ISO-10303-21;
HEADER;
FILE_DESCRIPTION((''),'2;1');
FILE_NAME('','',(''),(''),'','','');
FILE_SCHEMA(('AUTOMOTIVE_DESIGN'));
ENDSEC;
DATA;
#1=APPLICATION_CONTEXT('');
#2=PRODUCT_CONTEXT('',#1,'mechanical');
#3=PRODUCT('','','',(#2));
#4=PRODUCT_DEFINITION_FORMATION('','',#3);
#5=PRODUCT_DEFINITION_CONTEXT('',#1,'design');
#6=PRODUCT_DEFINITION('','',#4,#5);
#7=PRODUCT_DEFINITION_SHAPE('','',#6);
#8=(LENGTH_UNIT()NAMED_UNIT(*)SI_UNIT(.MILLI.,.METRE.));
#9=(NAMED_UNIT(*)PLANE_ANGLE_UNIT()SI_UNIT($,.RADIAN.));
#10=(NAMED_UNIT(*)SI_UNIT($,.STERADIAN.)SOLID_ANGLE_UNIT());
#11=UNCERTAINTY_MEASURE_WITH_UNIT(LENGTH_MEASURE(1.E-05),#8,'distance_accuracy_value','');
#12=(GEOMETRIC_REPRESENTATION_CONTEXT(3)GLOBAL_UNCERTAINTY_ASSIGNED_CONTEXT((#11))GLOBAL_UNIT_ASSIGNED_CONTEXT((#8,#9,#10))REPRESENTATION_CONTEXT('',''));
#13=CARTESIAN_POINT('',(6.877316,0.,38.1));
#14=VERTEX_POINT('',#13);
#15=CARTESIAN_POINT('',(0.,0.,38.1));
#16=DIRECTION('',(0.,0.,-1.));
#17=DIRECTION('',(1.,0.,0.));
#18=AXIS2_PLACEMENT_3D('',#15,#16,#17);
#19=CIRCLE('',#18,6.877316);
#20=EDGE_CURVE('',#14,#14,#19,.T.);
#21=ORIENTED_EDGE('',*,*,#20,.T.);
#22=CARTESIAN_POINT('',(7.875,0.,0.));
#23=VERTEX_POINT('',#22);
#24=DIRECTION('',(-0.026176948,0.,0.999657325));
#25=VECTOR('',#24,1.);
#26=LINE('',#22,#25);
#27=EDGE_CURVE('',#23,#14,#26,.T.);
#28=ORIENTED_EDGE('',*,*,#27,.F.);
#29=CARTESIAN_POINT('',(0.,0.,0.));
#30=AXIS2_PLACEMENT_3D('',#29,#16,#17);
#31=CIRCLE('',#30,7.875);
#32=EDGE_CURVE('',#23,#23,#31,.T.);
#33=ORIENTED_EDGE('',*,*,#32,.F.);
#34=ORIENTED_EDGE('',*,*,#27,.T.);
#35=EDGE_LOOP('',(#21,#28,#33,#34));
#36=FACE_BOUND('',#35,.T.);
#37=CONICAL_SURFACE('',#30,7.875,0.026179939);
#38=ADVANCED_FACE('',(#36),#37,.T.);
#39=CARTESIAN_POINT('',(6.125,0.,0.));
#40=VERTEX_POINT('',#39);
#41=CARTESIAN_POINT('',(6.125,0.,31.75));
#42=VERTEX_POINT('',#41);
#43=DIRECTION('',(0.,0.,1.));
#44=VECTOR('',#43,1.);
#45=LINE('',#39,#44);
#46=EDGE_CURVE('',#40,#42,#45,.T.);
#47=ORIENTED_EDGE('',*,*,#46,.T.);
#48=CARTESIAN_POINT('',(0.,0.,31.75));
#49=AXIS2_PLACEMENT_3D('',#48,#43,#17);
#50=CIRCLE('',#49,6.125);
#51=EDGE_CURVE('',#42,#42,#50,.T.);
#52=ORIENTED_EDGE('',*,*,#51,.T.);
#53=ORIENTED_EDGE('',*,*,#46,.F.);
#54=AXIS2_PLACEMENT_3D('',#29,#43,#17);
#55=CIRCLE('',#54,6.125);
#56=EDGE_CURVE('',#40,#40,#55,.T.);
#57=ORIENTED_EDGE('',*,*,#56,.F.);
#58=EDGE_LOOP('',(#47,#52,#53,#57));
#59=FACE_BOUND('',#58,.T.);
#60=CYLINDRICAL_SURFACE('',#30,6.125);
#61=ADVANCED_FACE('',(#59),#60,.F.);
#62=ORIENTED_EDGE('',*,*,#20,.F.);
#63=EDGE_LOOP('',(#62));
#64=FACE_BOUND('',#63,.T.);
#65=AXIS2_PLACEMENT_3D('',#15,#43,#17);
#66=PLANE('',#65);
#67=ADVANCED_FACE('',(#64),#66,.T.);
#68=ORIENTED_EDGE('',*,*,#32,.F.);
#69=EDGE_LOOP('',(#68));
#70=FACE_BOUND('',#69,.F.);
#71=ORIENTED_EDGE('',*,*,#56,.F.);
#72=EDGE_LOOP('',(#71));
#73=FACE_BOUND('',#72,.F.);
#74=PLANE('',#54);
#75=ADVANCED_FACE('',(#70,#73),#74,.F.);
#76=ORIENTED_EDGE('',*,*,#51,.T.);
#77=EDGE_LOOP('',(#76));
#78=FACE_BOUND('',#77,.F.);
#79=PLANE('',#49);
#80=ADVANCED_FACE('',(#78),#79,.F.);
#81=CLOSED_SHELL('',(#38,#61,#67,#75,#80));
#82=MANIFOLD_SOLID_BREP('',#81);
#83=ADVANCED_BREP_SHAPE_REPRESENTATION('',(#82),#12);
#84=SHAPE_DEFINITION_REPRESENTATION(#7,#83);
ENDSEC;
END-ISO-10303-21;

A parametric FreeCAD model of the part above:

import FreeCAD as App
import Part
import Sketcher
Q = App.Units.Quantity

doc = App.newDocument("Part")
body = doc.addObject("PartDesign::Body", "Body")

# Sketch on XY plane
sketch1 = doc.addObject("Sketcher::SketchObject", "Sketch")
body.addObject(sketch1)
sketch1.AttachmentSupport = (doc.XY_Plane, [""])
sketch1.MapMode = "FlatFace"
sketch1.addGeometry(Part.Circle(App.Vector(0, 0, 0), App.Vector(0, 0, 1), 8), False)
sketch1.addConstraint(Sketcher.Constraint("Coincident", 0, 3, -1, 1))
sketch1.addConstraint(Sketcher.Constraint("Diameter", 0, Q("15.75 mm")))
pad1 = doc.addObject("PartDesign::Pad", "Pad")
body.addObject(pad1)
pad1.Profile = sketch1
pad1.Length = Q("1.5 in")
pad1.TaperAngle = -1.5

# Sketch on XY plane
sketch2 = doc.addObject("Sketcher::SketchObject", "Sketch001")
body.addObject(sketch2)
sketch2.AttachmentSupport = (doc.XY_Plane, [""])
sketch2.MapMode = "FlatFace"
sketch2.addGeometry(Part.Circle(App.Vector(0, 0, 0), App.Vector(0, 0, 1), 6), False)
sketch2.addConstraint(Sketcher.Constraint("Coincident", 0, 3, -1, 1))
sketch2.addConstraint(Sketcher.Constraint("Diameter", 0, Q("12.25 mm")))
pocket1 = doc.addObject("PartDesign::Pocket", "Pocket")
body.addObject(pocket1)
pocket1.Profile = sketch2
pocket1.Length = Q("1.25 in")
pocket1.Reversed = True

doc.recompute()
